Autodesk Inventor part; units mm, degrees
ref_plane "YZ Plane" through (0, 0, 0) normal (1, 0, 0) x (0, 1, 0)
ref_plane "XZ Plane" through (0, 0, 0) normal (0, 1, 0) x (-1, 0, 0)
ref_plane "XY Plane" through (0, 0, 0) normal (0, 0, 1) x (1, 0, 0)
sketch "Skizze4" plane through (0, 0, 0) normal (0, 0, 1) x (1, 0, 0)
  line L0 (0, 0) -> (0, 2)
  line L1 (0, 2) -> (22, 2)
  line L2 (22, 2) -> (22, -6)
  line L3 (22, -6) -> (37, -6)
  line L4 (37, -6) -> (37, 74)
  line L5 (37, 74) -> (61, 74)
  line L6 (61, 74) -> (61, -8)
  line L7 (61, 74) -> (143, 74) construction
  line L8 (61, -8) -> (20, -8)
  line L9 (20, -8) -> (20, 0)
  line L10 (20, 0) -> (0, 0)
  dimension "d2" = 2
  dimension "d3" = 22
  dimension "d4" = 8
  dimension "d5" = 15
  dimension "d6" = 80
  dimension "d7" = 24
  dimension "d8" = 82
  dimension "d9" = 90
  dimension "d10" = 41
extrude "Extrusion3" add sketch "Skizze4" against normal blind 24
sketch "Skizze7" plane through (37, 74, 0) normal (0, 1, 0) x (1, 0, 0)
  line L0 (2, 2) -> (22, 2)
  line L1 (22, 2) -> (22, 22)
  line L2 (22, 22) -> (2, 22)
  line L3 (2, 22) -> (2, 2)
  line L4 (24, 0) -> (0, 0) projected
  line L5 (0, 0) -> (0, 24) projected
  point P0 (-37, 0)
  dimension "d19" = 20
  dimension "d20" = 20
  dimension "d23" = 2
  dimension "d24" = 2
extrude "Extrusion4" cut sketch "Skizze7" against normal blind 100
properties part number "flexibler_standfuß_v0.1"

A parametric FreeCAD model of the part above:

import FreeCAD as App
import Part
import Sketcher
from FreeCAD import Vector
Q = App.Units.Quantity

doc = App.newDocument("Part")
body = doc.addObject("PartDesign::Body", "Body")

# Sketch on XY plane
sketch1 = doc.addObject("Sketcher::SketchObject", "Sketch")
body.addObject(sketch1)
sketch1.AttachmentSupport = (doc.XY_Plane, [""])
sketch1.MapMode = "FlatFace"
sketch1.addGeometry(Part.LineSegment(Vector(0, 2, 0), Vector(0, 0, 0)), False)
sketch1.addGeometry(Part.LineSegment(Vector(0, 0, 0), Vector(20, 0, 0)), False)
sketch1.addGeometry(Part.LineSegment(Vector(20, 0, 0), Vector(20, -8, 0)), False)
sketch1.addGeometry(Part.LineSegment(Vector(20, -8, 0), Vector(61, -8, 0)), False)
sketch1.addGeometry(Part.LineSegment(Vector(61, -8, 0), Vector(61, 74, 0)), False)
sketch1.addGeometry(Part.LineSegment(Vector(61, 74, 0), Vector(37, 74, 0)), False)
sketch1.addGeometry(Part.LineSegment(Vector(37, 74, 0), Vector(37, -6, 0)), False)
sketch1.addGeometry(Part.LineSegment(Vector(37, -6, 0), Vector(22, -6, 0)), False)
sketch1.addGeometry(Part.LineSegment(Vector(22, -6, 0), Vector(22, 2, 0)), False)
sketch1.addGeometry(Part.LineSegment(Vector(22, 2, 0), Vector(0, 2, 0)), False)
sketch1.addConstraint(Sketcher.Constraint("Coincident", 0, 2, 1, 1))
sketch1.addConstraint(Sketcher.Constraint("Coincident", 1, 2, 2, 1))
sketch1.addConstraint(Sketcher.Constraint("Coincident", 2, 2, 3, 1))
sketch1.addConstraint(Sketcher.Constraint("Coincident", 3, 2, 4, 1))
sketch1.addConstraint(Sketcher.Constraint("Coincident", 4, 2, 5, 1))
sketch1.addConstraint(Sketcher.Constraint("Coincident", 5, 2, 6, 1))
sketch1.addConstraint(Sketcher.Constraint("Coincident", 6, 2, 7, 1))
sketch1.addConstraint(Sketcher.Constraint("Coincident", 7, 2, 8, 1))
sketch1.addConstraint(Sketcher.Constraint("Coincident", 8, 2, 9, 1))
sketch1.addConstraint(Sketcher.Constraint("Coincident", 9, 2, 0, 1))
sketch1.addConstraint(Sketcher.Constraint("Vertical", 0))
sketch1.addConstraint(Sketcher.Constraint("Horizontal", 1))
sketch1.addConstraint(Sketcher.Constraint("Vertical", 2))
sketch1.addConstraint(Sketcher.Constraint("Horizontal", 3))
sketch1.addConstraint(Sketcher.Constraint("Vertical", 4))
sketch1.addConstraint(Sketcher.Constraint("Horizontal", 5))
sketch1.addConstraint(Sketcher.Constraint("Vertical", 6))
sketch1.addConstraint(Sketcher.Constraint("Horizontal", 7))
sketch1.addConstraint(Sketcher.Constraint("Vertical", 8))
sketch1.addConstraint(Sketcher.Constraint("Horizontal", 9))
sketch1.addConstraint(Sketcher.Constraint("Coincident", 0, 2, -1, 1))
sketch1.addConstraint(Sketcher.Constraint("Equal", 2, 8))
sketch1.addConstraint(Sketcher.Constraint("DistanceX", 3, 1, 3, 2, Q("41 mm")))
sketch1.addConstraint(Sketcher.Constraint("DistanceX", 5, 2, 5, 1, Q("24 mm")))
sketch1.addConstraint(Sketcher.Constraint("DistanceX", 7, 2, 7, 1, Q("15 mm")))
sketch1.addConstraint(Sketcher.Constraint("DistanceX", 9, 2, 9, 1, Q("22 mm")))
sketch1.addConstraint(Sketcher.Constraint("DistanceY", 0, 2, 0, 1, Q("2 mm")))
sketch1.addConstraint(Sketcher.Constraint("DistanceY", 2, 2, 2, 1, Q("8 mm")))
sketch1.addConstraint(Sketcher.Constraint("DistanceY", 4, 1, 4, 2, Q("82 mm")))
pad1 = doc.addObject("PartDesign::Pad", "Pad")
body.addObject(pad1)
pad1.Profile = sketch1
pad1.Length = 24
pad1.Reversed = True

# Sketch on XZ plane
sketch2 = doc.addObject("Sketcher::SketchObject", "Sketch001")
body.addObject(sketch2)
sketch2.AttachmentSupport = (doc.XZ_Plane, [""])
sketch2.MapMode = "FlatFace"
sketch2.AttachmentOffset = App.Placement(Vector(0, 0, -74), App.Rotation())
sketch2.addGeometry(Part.LineSegment(Vector(39, -22, 0), Vector(39, -2, 0)), False)
sketch2.addGeometry(Part.LineSegment(Vector(39, -2, 0), Vector(59, -2, 0)), False)
sketch2.addGeometry(Part.LineSegment(Vector(59, -2, 0), Vector(59, -22, 0)), False)
sketch2.addGeometry(Part.LineSegment(Vector(59, -22, 0), Vector(39, -22, 0)), False)
sketch2.addConstraint(Sketcher.Constraint("Coincident", 0, 2, 1, 1))
sketch2.addConstraint(Sketcher.Constraint("Coincident", 1, 2, 2, 1))
sketch2.addConstraint(Sketcher.Constraint("Coincident", 2, 2, 3, 1))
sketch2.addConstraint(Sketcher.Constraint("Coincident", 3, 2, 0, 1))
sketch2.addConstraint(Sketcher.Constraint("Vertical", 0))
sketch2.addConstraint(Sketcher.Constraint("Horizontal", 1))
sketch2.addConstraint(Sketcher.Constraint("Vertical", 2))
sketch2.addConstraint(Sketcher.Constraint("Horizontal", 3))
sketch2.addConstraint(Sketcher.Constraint("Equal", 3, 0))
sketch2.addConstraint(Sketcher.Constraint("DistanceX", 1, 1, 1, 2, Q("20 mm")))
sketch2.addConstraint(Sketcher.Constraint("DistanceY", 0, 2, -1, 1, Q("2 mm")))
sketch2.addConstraint(Sketcher.Constraint("DistanceX", -1, 1, 0, 2, Q("39 mm")))
pocket1 = doc.addObject("PartDesign::Pocket", "Pocket")
body.addObject(pocket1)
pocket1.Profile = sketch2
pocket1.Length = 100
pocket1.Reversed = True

doc.recompute()
